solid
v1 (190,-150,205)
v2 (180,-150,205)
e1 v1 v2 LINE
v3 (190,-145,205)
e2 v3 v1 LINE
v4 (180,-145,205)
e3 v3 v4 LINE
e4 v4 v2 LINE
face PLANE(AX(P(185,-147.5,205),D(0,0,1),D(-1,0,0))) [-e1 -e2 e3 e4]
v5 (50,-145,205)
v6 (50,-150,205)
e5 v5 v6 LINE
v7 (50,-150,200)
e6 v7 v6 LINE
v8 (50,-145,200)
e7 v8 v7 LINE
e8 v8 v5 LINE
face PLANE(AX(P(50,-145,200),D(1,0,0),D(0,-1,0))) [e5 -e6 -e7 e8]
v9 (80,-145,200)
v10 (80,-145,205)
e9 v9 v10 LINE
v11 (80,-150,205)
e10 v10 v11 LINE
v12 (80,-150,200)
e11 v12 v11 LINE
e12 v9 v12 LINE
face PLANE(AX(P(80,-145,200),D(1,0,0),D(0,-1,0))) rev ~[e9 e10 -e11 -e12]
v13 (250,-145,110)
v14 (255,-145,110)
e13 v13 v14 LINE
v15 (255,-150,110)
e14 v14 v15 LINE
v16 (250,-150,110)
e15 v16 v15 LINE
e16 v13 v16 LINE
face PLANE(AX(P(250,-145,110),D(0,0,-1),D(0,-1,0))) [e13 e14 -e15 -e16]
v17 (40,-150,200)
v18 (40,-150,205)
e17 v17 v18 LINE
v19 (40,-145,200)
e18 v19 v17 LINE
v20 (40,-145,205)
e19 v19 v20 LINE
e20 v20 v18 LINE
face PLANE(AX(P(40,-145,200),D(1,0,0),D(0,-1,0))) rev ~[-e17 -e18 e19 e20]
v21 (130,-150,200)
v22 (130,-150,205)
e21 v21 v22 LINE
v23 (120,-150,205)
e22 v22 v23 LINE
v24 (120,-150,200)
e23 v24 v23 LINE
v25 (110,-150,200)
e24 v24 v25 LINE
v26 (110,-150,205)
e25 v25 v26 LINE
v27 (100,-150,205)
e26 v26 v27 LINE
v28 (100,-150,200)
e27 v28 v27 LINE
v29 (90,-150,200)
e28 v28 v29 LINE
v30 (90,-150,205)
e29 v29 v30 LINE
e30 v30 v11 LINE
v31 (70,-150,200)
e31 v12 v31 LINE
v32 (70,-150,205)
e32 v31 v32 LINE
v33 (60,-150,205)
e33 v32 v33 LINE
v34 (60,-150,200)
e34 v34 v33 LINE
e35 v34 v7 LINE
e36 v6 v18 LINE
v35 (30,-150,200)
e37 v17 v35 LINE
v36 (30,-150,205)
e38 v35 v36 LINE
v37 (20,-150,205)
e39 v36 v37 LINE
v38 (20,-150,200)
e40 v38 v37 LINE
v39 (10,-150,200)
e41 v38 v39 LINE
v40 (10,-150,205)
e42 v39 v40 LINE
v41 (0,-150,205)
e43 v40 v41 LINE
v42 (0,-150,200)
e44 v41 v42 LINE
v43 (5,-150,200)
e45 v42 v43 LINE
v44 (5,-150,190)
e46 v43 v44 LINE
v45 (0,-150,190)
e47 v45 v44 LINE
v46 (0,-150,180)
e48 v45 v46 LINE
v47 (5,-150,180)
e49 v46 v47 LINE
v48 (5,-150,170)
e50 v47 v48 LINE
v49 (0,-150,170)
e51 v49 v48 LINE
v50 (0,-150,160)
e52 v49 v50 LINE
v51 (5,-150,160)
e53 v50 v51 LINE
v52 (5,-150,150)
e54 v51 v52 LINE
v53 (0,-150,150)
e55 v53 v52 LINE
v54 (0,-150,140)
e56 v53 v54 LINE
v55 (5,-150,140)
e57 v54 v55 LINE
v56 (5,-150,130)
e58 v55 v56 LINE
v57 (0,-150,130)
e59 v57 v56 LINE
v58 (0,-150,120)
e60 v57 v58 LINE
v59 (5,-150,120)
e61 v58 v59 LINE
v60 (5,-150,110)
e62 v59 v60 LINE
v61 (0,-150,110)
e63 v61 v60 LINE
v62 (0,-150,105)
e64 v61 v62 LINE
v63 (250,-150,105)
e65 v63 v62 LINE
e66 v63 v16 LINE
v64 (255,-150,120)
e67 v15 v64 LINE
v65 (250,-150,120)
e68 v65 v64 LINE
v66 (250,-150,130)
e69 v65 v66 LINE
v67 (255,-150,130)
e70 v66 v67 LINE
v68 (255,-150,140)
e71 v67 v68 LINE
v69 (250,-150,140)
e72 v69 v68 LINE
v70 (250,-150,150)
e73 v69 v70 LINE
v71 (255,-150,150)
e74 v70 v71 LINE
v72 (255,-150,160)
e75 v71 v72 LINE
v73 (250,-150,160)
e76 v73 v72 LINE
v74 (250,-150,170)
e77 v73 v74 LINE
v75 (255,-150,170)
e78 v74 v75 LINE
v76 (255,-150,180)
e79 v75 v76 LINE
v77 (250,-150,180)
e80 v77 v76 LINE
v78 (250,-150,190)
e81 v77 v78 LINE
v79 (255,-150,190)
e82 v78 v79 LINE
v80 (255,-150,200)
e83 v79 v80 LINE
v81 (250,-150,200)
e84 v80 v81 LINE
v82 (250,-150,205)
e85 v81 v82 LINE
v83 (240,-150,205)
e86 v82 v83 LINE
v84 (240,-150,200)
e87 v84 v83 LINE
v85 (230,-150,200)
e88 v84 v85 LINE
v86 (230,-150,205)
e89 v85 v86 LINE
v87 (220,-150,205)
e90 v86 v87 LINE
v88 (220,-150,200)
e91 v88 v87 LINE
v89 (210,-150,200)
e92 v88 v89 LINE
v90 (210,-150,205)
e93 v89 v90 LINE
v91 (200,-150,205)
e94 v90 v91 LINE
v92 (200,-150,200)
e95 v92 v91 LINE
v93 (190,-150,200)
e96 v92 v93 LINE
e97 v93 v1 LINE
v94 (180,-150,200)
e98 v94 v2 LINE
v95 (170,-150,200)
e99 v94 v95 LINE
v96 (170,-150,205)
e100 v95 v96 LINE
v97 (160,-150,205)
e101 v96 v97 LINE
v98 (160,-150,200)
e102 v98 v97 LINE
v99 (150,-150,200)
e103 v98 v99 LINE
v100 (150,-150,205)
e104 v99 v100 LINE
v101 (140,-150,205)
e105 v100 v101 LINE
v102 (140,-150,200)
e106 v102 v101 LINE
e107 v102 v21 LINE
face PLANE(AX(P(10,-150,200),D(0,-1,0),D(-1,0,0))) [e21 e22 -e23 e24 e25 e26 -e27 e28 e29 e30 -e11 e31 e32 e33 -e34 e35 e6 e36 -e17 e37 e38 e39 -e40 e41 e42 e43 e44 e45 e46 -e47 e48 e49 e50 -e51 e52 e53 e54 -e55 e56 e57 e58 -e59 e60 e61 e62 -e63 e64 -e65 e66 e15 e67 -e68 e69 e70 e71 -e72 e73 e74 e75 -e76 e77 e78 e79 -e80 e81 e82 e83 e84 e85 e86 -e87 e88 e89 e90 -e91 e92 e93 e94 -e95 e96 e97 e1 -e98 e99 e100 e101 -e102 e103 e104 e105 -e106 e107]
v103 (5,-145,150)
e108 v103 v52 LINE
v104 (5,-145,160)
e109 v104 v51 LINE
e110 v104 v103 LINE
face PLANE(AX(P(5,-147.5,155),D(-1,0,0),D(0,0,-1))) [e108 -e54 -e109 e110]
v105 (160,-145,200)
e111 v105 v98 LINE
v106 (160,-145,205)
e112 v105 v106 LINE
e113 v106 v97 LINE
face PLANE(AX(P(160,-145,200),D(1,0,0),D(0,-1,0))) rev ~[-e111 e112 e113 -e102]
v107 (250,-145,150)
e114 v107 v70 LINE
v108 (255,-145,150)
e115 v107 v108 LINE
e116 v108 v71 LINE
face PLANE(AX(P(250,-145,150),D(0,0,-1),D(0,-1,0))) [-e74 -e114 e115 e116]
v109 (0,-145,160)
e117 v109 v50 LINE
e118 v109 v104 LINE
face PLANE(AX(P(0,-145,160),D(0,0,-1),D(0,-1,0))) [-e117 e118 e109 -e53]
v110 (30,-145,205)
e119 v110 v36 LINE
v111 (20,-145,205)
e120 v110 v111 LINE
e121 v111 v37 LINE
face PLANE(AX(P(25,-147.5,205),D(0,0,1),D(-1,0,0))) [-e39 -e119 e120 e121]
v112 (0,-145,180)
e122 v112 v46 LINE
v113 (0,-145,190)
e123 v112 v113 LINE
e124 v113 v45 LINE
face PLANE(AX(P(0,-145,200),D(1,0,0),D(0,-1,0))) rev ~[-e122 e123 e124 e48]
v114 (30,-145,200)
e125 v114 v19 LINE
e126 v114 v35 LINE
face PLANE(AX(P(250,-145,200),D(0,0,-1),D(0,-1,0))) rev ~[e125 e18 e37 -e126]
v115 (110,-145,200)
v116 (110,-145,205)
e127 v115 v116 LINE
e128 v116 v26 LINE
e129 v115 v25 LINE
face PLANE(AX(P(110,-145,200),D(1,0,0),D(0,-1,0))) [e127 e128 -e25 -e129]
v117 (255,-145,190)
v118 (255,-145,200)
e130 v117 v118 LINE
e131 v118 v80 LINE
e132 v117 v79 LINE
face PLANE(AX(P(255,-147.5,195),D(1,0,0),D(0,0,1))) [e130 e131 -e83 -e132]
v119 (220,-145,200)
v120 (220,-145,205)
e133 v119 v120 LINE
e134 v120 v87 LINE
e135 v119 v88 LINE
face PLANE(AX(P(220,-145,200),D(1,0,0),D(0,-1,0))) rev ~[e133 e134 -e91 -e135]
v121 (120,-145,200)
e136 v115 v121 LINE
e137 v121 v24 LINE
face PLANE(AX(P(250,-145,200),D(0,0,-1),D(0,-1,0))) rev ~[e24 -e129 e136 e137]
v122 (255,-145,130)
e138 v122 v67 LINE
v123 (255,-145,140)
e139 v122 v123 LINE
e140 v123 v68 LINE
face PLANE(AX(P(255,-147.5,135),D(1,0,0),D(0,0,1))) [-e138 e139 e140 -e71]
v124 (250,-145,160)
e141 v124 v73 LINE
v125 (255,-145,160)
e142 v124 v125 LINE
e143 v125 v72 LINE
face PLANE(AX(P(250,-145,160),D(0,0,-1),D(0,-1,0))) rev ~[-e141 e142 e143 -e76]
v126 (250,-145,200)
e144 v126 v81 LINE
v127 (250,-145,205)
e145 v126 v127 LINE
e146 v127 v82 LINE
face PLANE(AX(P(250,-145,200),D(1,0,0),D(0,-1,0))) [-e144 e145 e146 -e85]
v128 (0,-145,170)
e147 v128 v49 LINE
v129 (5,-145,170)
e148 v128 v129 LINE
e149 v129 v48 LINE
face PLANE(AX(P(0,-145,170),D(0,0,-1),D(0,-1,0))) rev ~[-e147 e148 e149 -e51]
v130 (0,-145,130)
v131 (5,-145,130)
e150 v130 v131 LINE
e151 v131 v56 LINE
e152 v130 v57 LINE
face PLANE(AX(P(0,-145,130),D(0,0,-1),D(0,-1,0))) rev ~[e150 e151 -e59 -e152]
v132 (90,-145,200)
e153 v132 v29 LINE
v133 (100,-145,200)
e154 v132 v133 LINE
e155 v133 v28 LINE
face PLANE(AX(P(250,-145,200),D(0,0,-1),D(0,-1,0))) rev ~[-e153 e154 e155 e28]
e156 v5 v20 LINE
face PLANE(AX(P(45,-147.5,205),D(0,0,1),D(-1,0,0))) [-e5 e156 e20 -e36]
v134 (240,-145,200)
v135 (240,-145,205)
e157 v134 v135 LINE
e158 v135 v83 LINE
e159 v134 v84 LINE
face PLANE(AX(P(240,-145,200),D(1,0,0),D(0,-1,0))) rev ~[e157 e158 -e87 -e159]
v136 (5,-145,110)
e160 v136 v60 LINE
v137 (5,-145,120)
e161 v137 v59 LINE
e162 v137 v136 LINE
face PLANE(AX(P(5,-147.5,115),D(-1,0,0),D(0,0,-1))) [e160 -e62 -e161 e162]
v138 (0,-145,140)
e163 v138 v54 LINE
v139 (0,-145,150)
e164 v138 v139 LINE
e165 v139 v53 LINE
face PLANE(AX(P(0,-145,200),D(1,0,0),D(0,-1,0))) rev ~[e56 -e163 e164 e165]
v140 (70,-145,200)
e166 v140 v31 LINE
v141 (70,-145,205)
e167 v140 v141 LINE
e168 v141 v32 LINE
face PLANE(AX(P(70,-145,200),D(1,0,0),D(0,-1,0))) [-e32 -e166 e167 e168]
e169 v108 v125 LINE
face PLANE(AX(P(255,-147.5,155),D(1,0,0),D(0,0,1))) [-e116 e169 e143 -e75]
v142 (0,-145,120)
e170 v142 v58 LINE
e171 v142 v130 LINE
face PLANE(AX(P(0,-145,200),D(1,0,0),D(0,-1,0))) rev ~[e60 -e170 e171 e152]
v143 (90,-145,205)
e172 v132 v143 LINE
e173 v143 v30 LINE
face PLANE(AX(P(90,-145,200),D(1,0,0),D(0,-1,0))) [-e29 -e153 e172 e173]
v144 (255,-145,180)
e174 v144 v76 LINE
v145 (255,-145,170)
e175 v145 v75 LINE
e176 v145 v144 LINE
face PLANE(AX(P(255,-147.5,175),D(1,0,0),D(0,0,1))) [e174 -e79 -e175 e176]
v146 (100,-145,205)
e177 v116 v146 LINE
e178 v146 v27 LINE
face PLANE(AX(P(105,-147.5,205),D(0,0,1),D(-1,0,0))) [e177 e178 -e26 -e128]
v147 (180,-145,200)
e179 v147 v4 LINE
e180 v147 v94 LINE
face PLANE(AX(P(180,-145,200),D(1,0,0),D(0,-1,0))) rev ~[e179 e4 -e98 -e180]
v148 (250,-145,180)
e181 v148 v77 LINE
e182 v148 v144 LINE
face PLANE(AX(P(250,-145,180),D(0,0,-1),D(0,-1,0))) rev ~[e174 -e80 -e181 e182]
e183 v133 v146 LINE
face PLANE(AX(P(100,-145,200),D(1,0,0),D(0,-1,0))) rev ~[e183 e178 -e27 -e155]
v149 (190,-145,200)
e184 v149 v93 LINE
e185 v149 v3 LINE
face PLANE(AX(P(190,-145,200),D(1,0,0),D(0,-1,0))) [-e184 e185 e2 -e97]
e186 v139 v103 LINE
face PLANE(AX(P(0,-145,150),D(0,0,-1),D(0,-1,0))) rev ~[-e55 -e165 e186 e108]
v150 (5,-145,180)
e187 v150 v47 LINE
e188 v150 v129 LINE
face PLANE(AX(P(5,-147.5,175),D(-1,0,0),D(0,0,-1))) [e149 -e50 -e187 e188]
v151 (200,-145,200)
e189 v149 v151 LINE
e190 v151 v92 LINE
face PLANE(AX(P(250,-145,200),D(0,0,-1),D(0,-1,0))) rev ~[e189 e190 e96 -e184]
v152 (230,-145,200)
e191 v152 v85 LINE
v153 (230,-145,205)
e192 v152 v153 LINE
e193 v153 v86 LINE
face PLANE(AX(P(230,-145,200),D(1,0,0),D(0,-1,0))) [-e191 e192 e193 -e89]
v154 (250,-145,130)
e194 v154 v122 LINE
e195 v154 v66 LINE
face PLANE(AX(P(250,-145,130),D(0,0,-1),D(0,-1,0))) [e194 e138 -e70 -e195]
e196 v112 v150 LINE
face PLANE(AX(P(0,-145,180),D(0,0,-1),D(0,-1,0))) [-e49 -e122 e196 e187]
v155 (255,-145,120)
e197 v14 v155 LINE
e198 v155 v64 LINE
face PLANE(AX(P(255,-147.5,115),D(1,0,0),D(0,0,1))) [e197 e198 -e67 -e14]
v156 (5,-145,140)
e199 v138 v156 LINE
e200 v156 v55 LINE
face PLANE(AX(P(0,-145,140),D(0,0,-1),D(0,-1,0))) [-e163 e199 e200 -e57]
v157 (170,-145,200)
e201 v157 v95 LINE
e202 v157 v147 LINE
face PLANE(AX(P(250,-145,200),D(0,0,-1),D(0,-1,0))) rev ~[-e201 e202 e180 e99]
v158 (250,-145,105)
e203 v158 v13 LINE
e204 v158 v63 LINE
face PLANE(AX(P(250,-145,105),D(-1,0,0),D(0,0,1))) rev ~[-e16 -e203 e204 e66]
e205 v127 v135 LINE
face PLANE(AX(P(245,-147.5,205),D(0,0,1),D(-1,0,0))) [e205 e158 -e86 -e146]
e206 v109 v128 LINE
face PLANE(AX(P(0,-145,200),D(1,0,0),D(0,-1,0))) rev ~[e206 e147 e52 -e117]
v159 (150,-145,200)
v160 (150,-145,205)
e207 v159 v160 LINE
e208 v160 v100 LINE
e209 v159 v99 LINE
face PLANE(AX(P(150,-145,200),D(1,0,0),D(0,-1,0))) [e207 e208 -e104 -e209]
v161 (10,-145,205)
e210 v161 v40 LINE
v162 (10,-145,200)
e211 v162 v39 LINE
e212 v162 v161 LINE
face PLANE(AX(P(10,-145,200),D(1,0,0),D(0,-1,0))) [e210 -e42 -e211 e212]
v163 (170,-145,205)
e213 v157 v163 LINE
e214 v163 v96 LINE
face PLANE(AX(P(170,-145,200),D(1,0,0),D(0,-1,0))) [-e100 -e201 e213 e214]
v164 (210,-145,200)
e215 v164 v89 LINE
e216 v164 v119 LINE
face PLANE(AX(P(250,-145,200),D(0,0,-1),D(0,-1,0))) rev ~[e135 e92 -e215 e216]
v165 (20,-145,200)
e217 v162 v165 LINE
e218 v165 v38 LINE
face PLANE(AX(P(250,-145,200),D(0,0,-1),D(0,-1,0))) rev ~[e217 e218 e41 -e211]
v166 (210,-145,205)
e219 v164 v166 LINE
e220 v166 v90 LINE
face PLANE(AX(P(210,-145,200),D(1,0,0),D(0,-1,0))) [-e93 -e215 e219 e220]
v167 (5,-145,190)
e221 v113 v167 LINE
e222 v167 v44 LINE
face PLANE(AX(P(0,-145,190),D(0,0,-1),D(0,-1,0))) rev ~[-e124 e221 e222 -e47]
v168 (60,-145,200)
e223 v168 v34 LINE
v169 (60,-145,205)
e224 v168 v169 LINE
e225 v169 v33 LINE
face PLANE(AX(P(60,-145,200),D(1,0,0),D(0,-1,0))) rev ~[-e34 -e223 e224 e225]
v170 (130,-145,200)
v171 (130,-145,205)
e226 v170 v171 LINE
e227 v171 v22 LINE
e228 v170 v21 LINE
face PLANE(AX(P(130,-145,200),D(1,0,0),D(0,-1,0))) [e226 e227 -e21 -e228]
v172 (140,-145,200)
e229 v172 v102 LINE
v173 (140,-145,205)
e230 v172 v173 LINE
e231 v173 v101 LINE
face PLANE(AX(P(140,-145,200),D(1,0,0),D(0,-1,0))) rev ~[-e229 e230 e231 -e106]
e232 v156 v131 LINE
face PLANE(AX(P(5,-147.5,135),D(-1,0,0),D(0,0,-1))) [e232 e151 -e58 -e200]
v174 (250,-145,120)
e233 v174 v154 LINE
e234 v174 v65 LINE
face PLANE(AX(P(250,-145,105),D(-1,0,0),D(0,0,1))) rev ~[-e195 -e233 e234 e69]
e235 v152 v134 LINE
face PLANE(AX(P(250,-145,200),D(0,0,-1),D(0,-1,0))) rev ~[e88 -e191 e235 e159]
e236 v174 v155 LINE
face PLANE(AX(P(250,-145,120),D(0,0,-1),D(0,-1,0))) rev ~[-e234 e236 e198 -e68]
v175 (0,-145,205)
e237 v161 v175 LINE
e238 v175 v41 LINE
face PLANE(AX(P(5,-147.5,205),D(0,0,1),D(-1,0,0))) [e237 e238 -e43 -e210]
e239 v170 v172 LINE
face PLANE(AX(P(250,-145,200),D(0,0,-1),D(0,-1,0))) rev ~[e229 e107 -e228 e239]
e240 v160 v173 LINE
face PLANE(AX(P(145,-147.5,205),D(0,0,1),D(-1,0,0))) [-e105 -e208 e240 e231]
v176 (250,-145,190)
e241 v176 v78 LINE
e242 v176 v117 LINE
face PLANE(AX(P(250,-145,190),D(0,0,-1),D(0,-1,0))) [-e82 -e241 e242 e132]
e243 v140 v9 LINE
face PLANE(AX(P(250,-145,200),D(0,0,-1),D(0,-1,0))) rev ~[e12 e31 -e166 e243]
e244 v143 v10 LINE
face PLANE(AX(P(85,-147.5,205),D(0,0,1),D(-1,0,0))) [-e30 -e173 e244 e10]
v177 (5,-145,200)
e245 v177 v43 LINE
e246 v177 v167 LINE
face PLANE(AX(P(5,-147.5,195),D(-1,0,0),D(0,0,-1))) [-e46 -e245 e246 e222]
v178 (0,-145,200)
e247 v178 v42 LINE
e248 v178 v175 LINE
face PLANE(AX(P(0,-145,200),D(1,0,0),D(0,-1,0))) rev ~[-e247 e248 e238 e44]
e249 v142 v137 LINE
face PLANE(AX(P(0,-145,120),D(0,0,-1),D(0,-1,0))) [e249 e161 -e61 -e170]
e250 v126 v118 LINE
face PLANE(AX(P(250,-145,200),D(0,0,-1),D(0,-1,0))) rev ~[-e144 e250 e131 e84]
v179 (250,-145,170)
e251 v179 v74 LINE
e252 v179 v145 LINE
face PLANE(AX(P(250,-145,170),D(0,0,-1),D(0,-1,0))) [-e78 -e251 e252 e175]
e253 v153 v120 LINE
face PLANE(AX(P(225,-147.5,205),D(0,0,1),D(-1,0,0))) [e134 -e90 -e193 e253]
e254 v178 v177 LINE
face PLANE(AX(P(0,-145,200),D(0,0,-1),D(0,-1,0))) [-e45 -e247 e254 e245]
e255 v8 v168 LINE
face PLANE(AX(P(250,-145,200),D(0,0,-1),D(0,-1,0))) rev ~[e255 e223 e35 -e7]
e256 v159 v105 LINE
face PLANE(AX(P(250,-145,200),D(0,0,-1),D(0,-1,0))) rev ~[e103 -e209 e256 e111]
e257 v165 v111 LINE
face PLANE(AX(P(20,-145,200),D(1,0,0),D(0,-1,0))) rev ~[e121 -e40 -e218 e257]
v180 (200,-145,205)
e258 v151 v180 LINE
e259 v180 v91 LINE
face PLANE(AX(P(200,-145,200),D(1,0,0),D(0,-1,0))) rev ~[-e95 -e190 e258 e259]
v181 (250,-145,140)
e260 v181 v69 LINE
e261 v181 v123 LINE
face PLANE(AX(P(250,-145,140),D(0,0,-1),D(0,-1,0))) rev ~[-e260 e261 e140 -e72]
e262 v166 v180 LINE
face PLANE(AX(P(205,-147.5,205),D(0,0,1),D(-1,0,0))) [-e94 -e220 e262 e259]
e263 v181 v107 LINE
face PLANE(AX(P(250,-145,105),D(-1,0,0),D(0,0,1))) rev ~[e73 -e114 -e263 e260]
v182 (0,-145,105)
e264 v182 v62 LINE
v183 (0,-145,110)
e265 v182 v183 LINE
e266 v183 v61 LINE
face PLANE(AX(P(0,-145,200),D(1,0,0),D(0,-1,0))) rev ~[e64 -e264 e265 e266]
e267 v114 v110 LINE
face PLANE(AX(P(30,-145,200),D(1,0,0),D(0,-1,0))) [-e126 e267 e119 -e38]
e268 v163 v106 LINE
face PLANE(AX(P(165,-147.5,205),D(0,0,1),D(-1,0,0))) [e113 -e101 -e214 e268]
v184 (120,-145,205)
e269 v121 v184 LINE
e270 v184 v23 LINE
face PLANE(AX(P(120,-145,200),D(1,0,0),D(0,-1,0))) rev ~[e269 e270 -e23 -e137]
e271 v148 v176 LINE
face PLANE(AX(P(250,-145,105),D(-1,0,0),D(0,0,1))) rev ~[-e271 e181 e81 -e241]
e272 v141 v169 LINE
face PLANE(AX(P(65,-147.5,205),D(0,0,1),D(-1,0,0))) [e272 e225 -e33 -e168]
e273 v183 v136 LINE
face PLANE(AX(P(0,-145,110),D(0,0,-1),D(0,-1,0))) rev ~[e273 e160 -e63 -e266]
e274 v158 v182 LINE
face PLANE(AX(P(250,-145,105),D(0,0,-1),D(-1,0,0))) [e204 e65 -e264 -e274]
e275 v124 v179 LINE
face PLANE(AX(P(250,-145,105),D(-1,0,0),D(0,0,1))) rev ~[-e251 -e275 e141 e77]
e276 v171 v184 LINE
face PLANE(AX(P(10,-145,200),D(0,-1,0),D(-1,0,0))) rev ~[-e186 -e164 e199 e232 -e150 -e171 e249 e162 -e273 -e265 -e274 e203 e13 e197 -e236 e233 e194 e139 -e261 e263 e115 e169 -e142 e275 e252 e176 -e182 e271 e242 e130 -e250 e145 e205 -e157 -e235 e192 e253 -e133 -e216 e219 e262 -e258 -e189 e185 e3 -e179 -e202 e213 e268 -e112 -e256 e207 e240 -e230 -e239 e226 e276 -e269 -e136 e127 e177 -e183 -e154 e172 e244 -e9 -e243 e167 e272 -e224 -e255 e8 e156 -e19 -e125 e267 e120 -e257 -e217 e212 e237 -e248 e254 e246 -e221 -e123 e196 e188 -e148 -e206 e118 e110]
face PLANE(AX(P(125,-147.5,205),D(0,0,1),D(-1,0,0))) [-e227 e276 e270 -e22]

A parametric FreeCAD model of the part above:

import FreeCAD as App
import Part
import Sketcher

V = App.Vector

doc = App.newDocument("Part")
body = doc.addObject("PartDesign::Body", "Body")

# Sketch on XY plane
sketch1 = body.newObject("Sketcher::SketchObject", "Sketch")
sketch1.AttachmentSupport = (doc.getObject("XY_Plane"), [""])
sketch1.MapMode = "FlatFace"
sketch1.addGeometry([
    Part.LineSegment(V(-48, 125, 0), V(-48, -125, 0)),
    Part.LineSegment(V(-48, -125, 0), V(48, -125, 0)),
    Part.LineSegment(V(48, -125, 0), V(48, 125, 0)),
    Part.LineSegment(V(48, 125, 0), V(-48, 125, 0)),
], False)
sketch1.addConstraint([
    Sketcher.Constraint("Coincident", 0, 2, 1, 1),
    Sketcher.Constraint("Coincident", 1, 2, 2, 1),
    Sketcher.Constraint("Coincident", 2, 2, 3, 1),
    Sketcher.Constraint("Coincident", 3, 2, 0, 1),
    Sketcher.Constraint("Vertical", 0),
    Sketcher.Constraint("Horizontal", 1),
    Sketcher.Constraint("Vertical", 2),
    Sketcher.Constraint("Horizontal", 3),
    Sketcher.Constraint("Symmetric", 0, 2, 2, 2, -1, 1),
    Sketcher.Constraint("DistanceX", 1, 1, 1, 2, 95.0),
    Sketcher.Constraint("DistanceY", 0, 2, 0, 1, 250.0),
])
pad1 = body.newObject("PartDesign::Pad", "Pad")
pad1.Profile = sketch1
pad1.Length = 5

# Sketch on XZ plane
sketch2 = body.newObject("Sketcher::SketchObject", "Sketch001")
sketch2.AttachmentSupport = (doc.getObject("XZ_Plane"), [""])
sketch2.MapMode = "FlatFace"
sketch2.AttachmentOffset = App.Placement(V(0, 0, 125), App.Rotation())
sketch2.addGeometry([
    Part.LineSegment(V(-42, 5, 0), V(-42, 0, 0)),
    Part.LineSegment(V(-42, 0, 0), V(-32, 0, 0)),
    Part.LineSegment(V(-32, 0, 0), V(-32, 5, 0)),
    Part.LineSegment(V(-32, 5, 0), V(-42, 5, 0)),
], False)
sketch2.addConstraint([
    Sketcher.Constraint("Coincident", 0, 2, 1, 1),
    Sketcher.Constraint("Coincident", 1, 2, 2, 1),
    Sketcher.Constraint("Coincident", 2, 2, 3, 1),
    Sketcher.Constraint("Coincident", 3, 2, 0, 1),
    Sketcher.Constraint("Vertical", 0),
    Sketcher.Constraint("Horizontal", 1),
    Sketcher.Constraint("Vertical", 2),
    Sketcher.Constraint("Horizontal", 3),
    Sketcher.Constraint("PointOnObject", 0, 2, -1),
    Sketcher.Constraint("DistanceX", 1, 1, 1, 2, 10.0),
    Sketcher.Constraint("DistanceY", 0, 2, 0, 1, 5.0),
    Sketcher.Constraint("DistanceX", 0, 2, -1, 1, 42.5),
])
pad2 = body.newObject("PartDesign::Pad", "Pad001")
pad2.Profile = sketch2
pad2.Length = 5
doc.recompute()

linearpattern = body.newObject("PartDesign::LinearPattern", "LinearPattern")
linearpattern.Originals = [pad2]
linearpattern.Direction = (doc.getObject("X_Axis"), [""])
linearpattern.Mode = "offset"
linearpattern.Offset = 20
linearpattern.Occurrences = 5
body.Tip = linearpattern

# Sketch on YZ plane
sketch3 = body.newObject("Sketcher::SketchObject", "Sketch002")
sketch3.AttachmentSupport = (doc.getObject("YZ_Plane"), [""])
sketch3.MapMode = "FlatFace"
sketch3.AttachmentOffset = App.Placement(V(0, 0, 47.5), App.Rotation())
sketch3.addGeometry([
    Part.LineSegment(V(-125, 5, 0), V(-125, 0, 0)),
    Part.LineSegment(V(-125, 0, 0), V(-115, 0, 0)),
    Part.LineSegment(V(-115, 0, 0), V(-115, 5, 0)),
    Part.LineSegment(V(-115, 5, 0), V(-125, 5, 0)),
], False)
sketch3.addConstraint([
    Sketcher.Constraint("Coincident", 0, 2, 1, 1),
    Sketcher.Constraint("Coincident", 1, 2, 2, 1),
    Sketcher.Constraint("Coincident", 2, 2, 3, 1),
    Sketcher.Constraint("Coincident", 3, 2, 0, 1),
    Sketcher.Constraint("Vertical", 0),
    Sketcher.Constraint("Horizontal", 1),
    Sketcher.Constraint("Vertical", 2),
    Sketcher.Constraint("Horizontal", 3),
    Sketcher.Constraint("PointOnObject", 0, 2, -1),
    Sketcher.Constraint("DistanceX", 1, 1, 1, 2, 10.0),
    Sketcher.Constraint("DistanceY", 0, 2, 0, 1, 5.0),
    Sketcher.Constraint("DistanceX", 0, 2, -1, 1, 125.0),
])
pad3 = body.newObject("PartDesign::Pad", "Pad002")
pad3.Profile = sketch3
pad3.Length = 5
doc.recompute()

linearpattern2 = body.newObject("PartDesign::LinearPattern", "LinearPattern001")
linearpattern2.Originals = [pad3]
linearpattern2.Direction = (doc.getObject("Y_Axis"), [""])
linearpattern2.Mode = "offset"
linearpattern2.Offset = 20
linearpattern2.Occurrences = 13
body.Tip = linearpattern2

# Sketch on XZ plane
sketch4 = body.newObject("Sketcher::SketchObject", "Sketch003")
sketch4.AttachmentSupport = (doc.getObject("XZ_Plane"), [""])
sketch4.MapMode = "FlatFace"
sketch4.AttachmentOffset = App.Placement(V(0, 0, -125), App.Rotation())
sketch4.addGeometry([
    Part.LineSegment(V(48, 5, 0), V(48, 0, 0)),
    Part.LineSegment(V(48, 0, 0), V(38, 0, 0)),
    Part.LineSegment(V(38, 0, 0), V(38, 5, 0)),
    Part.LineSegment(V(38, 5, 0), V(48, 5, 0)),
], False)
sketch4.addConstraint([
    Sketcher.Constraint("Coincident", 0, 2, 1, 1),
    Sketcher.Constraint("Coincident", 1, 2, 2, 1),
    Sketcher.Constraint("Coincident", 2, 2, 3, 1),
    Sketcher.Constraint("Coincident", 3, 2, 0, 1),
    Sketcher.Constraint("Vertical", 0),
    Sketcher.Constraint("Horizontal", 1),
    Sketcher.Constraint("Vertical", 2),
    Sketcher.Constraint("Horizontal", 3),
    Sketcher.Constraint("PointOnObject", 0, 2, -1),
    Sketcher.Constraint("DistanceX", 1, 2, 1, 1, 10.0),
    Sketcher.Constraint("DistanceY", 0, 2, 0, 1, 5.0),
    Sketcher.Constraint("DistanceX", -1, 1, 0, 2, 47.5),
])
pocket1 = body.newObject("PartDesign::Pocket", "Pocket")
pocket1.Profile = sketch4
pocket1.Length = 5
pocket1.Reversed = True
doc.recompute()

linearpattern3 = body.newObject("PartDesign::LinearPattern", "LinearPattern002")
linearpattern3.Originals = [pocket1]
linearpattern3.Direction = (doc.getObject("X_Axis"), [""])
linearpattern3.Mode = "offset"
linearpattern3.Offset = 20
linearpattern3.Occurrences = 5
linearpattern3.Reversed = True
body.Tip = linearpattern3
body2 = doc.addObject("PartDesign::Body", "Body001")
doc.recompute()

body.Placement = App.Placement(V(0, 0, 0), App.Rotation(V(0, 1, 0), 270))
boolean = body2.newObject("PartDesign::Boolean", "Boolean")
boolean.Type = "Fuse"
boolean.addObjects([body])
body3 = doc.addObject("PartDesign::Body", "Body002")
doc.recompute()

body2.Placement = App.Placement(V(125, -145, 152.5), App.Rotation(V(0, 0, 1), 90))
boolean2 = body3.newObject("PartDesign::Boolean", "Boolean001")
boolean2.Type = "Fuse"
boolean2.addObjects([body2])

doc.recompute()
